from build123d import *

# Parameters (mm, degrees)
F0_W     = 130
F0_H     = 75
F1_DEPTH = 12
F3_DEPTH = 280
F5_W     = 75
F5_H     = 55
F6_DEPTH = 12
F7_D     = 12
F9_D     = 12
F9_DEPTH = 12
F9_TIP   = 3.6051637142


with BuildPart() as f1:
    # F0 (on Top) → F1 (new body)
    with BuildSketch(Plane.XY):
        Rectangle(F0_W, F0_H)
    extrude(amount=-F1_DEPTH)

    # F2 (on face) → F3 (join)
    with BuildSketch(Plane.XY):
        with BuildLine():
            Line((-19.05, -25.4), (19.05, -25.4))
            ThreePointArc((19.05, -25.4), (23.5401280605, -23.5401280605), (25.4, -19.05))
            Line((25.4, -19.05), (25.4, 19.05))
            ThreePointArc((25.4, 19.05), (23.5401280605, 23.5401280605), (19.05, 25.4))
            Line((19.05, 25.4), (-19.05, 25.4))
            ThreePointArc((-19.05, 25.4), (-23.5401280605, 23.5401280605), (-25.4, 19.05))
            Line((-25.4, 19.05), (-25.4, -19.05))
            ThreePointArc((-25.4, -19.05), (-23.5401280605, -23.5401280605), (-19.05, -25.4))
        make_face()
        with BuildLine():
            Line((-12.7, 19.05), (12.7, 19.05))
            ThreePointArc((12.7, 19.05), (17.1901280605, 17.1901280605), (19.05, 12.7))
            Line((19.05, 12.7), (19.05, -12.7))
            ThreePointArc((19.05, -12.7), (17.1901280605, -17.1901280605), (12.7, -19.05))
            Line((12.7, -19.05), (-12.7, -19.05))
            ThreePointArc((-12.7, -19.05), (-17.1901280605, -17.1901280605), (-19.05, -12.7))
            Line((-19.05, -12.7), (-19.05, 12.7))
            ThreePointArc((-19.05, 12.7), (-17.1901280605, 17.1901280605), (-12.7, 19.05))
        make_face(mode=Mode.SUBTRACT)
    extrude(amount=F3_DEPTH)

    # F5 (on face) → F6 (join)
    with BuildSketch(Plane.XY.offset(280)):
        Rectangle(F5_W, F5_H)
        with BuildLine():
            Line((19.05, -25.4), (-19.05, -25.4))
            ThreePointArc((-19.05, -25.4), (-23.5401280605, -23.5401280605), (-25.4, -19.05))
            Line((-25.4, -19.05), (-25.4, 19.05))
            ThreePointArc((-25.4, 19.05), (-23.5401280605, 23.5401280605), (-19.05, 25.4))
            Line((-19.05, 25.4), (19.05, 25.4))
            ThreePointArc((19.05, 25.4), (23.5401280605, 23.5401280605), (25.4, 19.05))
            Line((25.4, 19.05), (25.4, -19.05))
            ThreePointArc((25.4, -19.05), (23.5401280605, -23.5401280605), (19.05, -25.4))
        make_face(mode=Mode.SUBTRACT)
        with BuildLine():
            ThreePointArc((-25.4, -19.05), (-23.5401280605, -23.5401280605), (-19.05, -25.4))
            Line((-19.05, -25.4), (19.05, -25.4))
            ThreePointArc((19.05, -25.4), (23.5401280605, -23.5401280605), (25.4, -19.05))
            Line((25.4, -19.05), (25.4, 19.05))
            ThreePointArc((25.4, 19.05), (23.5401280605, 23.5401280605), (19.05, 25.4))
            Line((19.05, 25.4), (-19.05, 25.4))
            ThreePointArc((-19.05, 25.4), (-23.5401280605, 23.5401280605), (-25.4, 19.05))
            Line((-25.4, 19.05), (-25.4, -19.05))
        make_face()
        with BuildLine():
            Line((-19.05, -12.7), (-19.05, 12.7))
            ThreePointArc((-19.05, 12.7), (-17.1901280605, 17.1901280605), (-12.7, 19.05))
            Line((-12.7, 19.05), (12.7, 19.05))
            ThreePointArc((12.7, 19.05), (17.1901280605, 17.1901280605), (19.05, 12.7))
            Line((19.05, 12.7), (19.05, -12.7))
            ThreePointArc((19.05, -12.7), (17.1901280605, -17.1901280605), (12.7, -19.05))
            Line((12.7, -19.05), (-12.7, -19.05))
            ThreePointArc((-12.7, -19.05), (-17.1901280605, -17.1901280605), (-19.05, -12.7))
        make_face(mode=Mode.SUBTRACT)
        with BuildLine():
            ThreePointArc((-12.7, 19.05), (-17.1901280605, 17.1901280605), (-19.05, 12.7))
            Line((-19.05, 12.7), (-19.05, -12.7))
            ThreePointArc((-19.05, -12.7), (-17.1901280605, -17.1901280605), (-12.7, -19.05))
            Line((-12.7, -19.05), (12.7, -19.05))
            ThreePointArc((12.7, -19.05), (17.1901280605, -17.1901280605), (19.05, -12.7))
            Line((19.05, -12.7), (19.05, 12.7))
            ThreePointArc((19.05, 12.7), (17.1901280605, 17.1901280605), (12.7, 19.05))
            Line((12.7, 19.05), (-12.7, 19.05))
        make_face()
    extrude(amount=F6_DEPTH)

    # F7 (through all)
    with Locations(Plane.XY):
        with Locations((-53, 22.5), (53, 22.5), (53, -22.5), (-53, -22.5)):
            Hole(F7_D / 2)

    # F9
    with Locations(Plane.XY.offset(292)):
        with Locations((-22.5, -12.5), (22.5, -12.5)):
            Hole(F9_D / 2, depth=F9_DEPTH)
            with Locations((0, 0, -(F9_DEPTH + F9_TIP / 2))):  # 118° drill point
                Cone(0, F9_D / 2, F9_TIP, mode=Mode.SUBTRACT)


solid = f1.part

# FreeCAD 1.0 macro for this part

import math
import FreeCAD as App
import Part
import Sketcher

V = App.Vector
Q = App.Units.Quantity

doc = App.newDocument("Part")
body = doc.addObject("PartDesign::Body", "Body")

sketch1 = body.newObject("Sketcher::SketchObject", "Sketch")
sketch1.AttachmentSupport = (doc.getObject("XY_Plane"), [""])
sketch1.MapMode = "FlatFace"
sketch1.addGeometry(Part.LineSegment(V(-65, 38, 0), V(-65, -38, 0)), False)
sketch1.addGeometry(Part.LineSegment(V(-65, -38, 0), V(65, -38, 0)), False)
sketch1.addGeometry(Part.LineSegment(V(65, -38, 0), V(65, 38, 0)), False)
sketch1.addGeometry(Part.LineSegment(V(65, 38, 0), V(-65, 38, 0)), False)
sketch1.addConstraint(Sketcher.Constraint("Coincident", 0, 2, 1, 1))
sketch1.addConstraint(Sketcher.Constraint("Coincident", 1, 2, 2, 1))
sketch1.addConstraint(Sketcher.Constraint("Coincident", 2, 2, 3, 1))
sketch1.addConstraint(Sketcher.Constraint("Coincident", 3, 2, 0, 1))
sketch1.addConstraint(Sketcher.Constraint("Vertical", 0))
sketch1.addConstraint(Sketcher.Constraint("Horizontal", 1))
sketch1.addConstraint(Sketcher.Constraint("Vertical", 2))
sketch1.addConstraint(Sketcher.Constraint("Horizontal", 3))
sketch1.addConstraint(Sketcher.Constraint("Symmetric", 0, 2, 2, 2, -1, 1))
sketch1.addConstraint(Sketcher.Constraint("DistanceX", 1, 1, 1, 2, Q("130 mm")))
sketch1.addConstraint(Sketcher.Constraint("DistanceY", 0, 2, 0, 1, Q("75 mm")))
pad1 = body.newObject("PartDesign::Pad", "Pad")
pad1.Profile = sketch1
pad1.Length = 12
pad1.Reversed = True

sketch2 = body.newObject("Sketcher::SketchObject", "Sketch001")
sketch2.AttachmentSupport = (doc.getObject("XY_Plane"), [""])
sketch2.MapMode = "FlatFace"
sketch2.addGeometry(Part.LineSegment(V(-19, -25, 0), V(19, -25, 0)), False)
sketch2.addGeometry(Part.ArcOfCircle(Part.Circle(V(19, -19, 0), V(0, 0, 1), 6), math.radians(-90), math.radians(0)), False)
sketch2.addGeometry(Part.LineSegment(V(25, -19, 0), V(25, 19, 0)), False)
sketch2.addGeometry(Part.ArcOfCircle(Part.Circle(V(19, 19, 0), V(0, 0, 1), 6), math.radians(0), math.radians(90)), False)
sketch2.addGeometry(Part.LineSegment(V(19, 25, 0), V(-19, 25, 0)), False)
sketch2.addGeometry(Part.ArcOfCircle(Part.Circle(V(-19, 19, 0), V(0, 0, 1), 6), math.radians(90), math.radians(180)), False)
sketch2.addGeometry(Part.LineSegment(V(-25, 19, 0), V(-25, -19, 0)), False)
sketch2.addGeometry(Part.ArcOfCircle(Part.Circle(V(-19, -19, 0), V(0, 0, 1), 6), math.radians(180), math.radians(270)), False)
sketch2.addGeometry(Part.ArcOfCircle(Part.Circle(V(-13, 13, 0), V(0, 0, 1), 6), math.radians(90), math.radians(180)), False)
sketch2.addGeometry(Part.LineSegment(V(-13, 19, 0), V(13, 19, 0)), False)
sketch2.addGeometry(Part.ArcOfCircle(Part.Circle(V(13, 13, 0), V(0, 0, 1), 6), math.radians(0), math.radians(90)), False)
sketch2.addGeometry(Part.LineSegment(V(19, 13, 0), V(19, -13, 0)), False)
sketch2.addGeometry(Part.ArcOfCircle(Part.Circle(V(13, -13, 0), V(0, 0, 1), 6), math.radians(-90), math.radians(0)), False)
sketch2.addGeometry(Part.LineSegment(V(13, -19, 0), V(-13, -19, 0)), False)
sketch2.addGeometry(Part.ArcOfCircle(Part.Circle(V(-13, -13, 0), V(0, 0, 1), 6), math.radians(180), math.radians(270)), False)
sketch2.addGeometry(Part.LineSegment(V(-19, -13, 0), V(-19, 13, 0)), False)
sketch2.addConstraint(Sketcher.Constraint("Tangent", 0, 2, 1, 1))
sketch2.addConstraint(Sketcher.Constraint("Tangent", 1, 2, 2, 1))
sketch2.addConstraint(Sketcher.Constraint("Tangent", 2, 2, 3, 1))
sketch2.addConstraint(Sketcher.Constraint("Tangent", 3, 2, 4, 1))
sketch2.addConstraint(Sketcher.Constraint("Tangent", 4, 2, 5, 1))
sketch2.addConstraint(Sketcher.Constraint("Tangent", 5, 2, 6, 1))
sketch2.addConstraint(Sketcher.Constraint("Tangent", 6, 2, 7, 1))
sketch2.addConstraint(Sketcher.Constraint("Tangent", 7, 2, 0, 1))
sketch2.addConstraint(Sketcher.Constraint("Tangent", 8, 1, 9, 1))
sketch2.addConstraint(Sketcher.Constraint("Tangent", 9, 2, 10, 2))
sketch2.addConstraint(Sketcher.Constraint("Tangent", 10, 1, 11, 1))
sketch2.addConstraint(Sketcher.Constraint("Tangent", 11, 2, 12, 2))
sketch2.addConstraint(Sketcher.Constraint("Tangent", 12, 1, 13, 1))
sketch2.addConstraint(Sketcher.Constraint("Tangent", 13, 2, 14, 2))
sketch2.addConstraint(Sketcher.Constraint("Tangent", 14, 1, 15, 1))
sketch2.addConstraint(Sketcher.Constraint("Tangent", 15, 2, 8, 2))
sketch2.addConstraint(Sketcher.Constraint("Horizontal", 0))
sketch2.addConstraint(Sketcher.Constraint("Vertical", 2))
sketch2.addConstraint(Sketcher.Constraint("Horizontal", 4))
sketch2.addConstraint(Sketcher.Constraint("Vertical", 6))
sketch2.addConstraint(Sketcher.Constraint("Horizontal", 9))
sketch2.addConstraint(Sketcher.Constraint("Vertical", 11))
sketch2.addConstraint(Sketcher.Constraint("Horizontal", 13))
sketch2.addConstraint(Sketcher.Constraint("Vertical", 15))
sketch2.addConstraint(Sketcher.Constraint("Equal", 1, 3))
sketch2.addConstraint(Sketcher.Constraint("Equal", 3, 5))
sketch2.addConstraint(Sketcher.Constraint("Equal", 5, 7))
sketch2.addConstraint(Sketcher.Constraint("Equal", 7, 8))
sketch2.addConstraint(Sketcher.Constraint("Equal", 8, 10))
sketch2.addConstraint(Sketcher.Constraint("Equal", 10, 12))
sketch2.addConstraint(Sketcher.Constraint("Equal", 12, 14))
sketch2.addConstraint(Sketcher.Constraint("Symmetric", 1, 3, 5, 3, -1, 1))
sketch2.addConstraint(Sketcher.Constraint("Symmetric", 8, 3, 12, 3, -1, 1))
sketch2.addConstraint(Sketcher.Constraint("Horizontal", 5, 2, 8, 1))
sketch2.addConstraint(Sketcher.Constraint("Vertical", 3, 2, 10, 1))
sketch2.addConstraint(Sketcher.Constraint("Equal", 4, 2))
sketch2.addConstraint(Sketcher.Constraint("Radius", 1, Q("6.35 mm")))
sketch2.addConstraint(Sketcher.Constraint("DistanceX", 0, 1, 0, 2, Q("38.1 mm")))
pad2 = body.newObject("PartDesign::Pad", "Pad001")
pad2.Profile = sketch2
pad2.Length = 280

sketch3 = body.newObject("Sketcher::SketchObject", "Sketch002")
sketch3.AttachmentSupport = (doc.getObject("XY_Plane"), [""])
sketch3.MapMode = "FlatFace"
sketch3.AttachmentOffset = App.Placement(V(0, 0, 280), App.Rotation())
sketch3.addGeometry(Part.LineSegment(V(-38, 28, 0), V(-38, -28, 0)), False)
sketch3.addGeometry(Part.LineSegment(V(-38, -28, 0), V(38, -28, 0)), False)
sketch3.addGeometry(Part.LineSegment(V(38, -28, 0), V(38, 28, 0)), False)
sketch3.addGeometry(Part.LineSegment(V(38, 28, 0), V(-38, 28, 0)), False)
sketch3.addConstraint(Sketcher.Constraint("Coincident", 0, 2, 1, 1))
sketch3.addConstraint(Sketcher.Constraint("Coincident", 1, 2, 2, 1))
sketch3.addConstraint(Sketcher.Constraint("Coincident", 2, 2, 3, 1))
sketch3.addConstraint(Sketcher.Constraint("Coincident", 3, 2, 0, 1))
sketch3.addConstraint(Sketcher.Constraint("Vertical", 0))
sketch3.addConstraint(Sketcher.Constraint("Horizontal", 1))
sketch3.addConstraint(Sketcher.Constraint("Vertical", 2))
sketch3.addConstraint(Sketcher.Constraint("Horizontal", 3))
sketch3.addConstraint(Sketcher.Constraint("Symmetric", 0, 2, 2, 2, -1, 1))
sketch3.addConstraint(Sketcher.Constraint("DistanceX", 1, 1, 1, 2, Q("75 mm")))
sketch3.addConstraint(Sketcher.Constraint("DistanceY", 0, 2, 0, 1, Q("55 mm")))
pad3 = body.newObject("PartDesign::Pad", "Pad002")
pad3.Profile = sketch3
pad3.Length = 12

sketch4 = body.newObject("Sketcher::SketchObject", "Sketch003")
sketch4.AttachmentSupport = (doc.getObject("XY_Plane"), [""])
sketch4.MapMode = "FlatFace"
sketch4.addGeometry(Part.Circle(V(-53, 22, 0), V(0, 0, 1), 6), False)
sketch4.addGeometry(Part.Circle(V(53, 22, 0), V(0, 0, 1), 6), False)
sketch4.addGeometry(Part.Circle(V(53, -22, 0), V(0, 0, 1), 6), False)
sketch4.addGeometry(Part.Circle(V(-53, -22, 0), V(0, 0, 1), 6), False)
sketch4.addConstraint(Sketcher.Constraint("Equal", 0, 1))
sketch4.addConstraint(Sketcher.Constraint("Equal", 1, 2))
sketch4.addConstraint(Sketcher.Constraint("Equal", 2, 3))
sketch4.addConstraint(Sketcher.Constraint("Symmetric", 0, 3, 2, 3, -1, 1))
sketch4.addConstraint(Sketcher.Constraint("Symmetric", 1, 3, 3, 3, -1, 1))
sketch4.addConstraint(Sketcher.Constraint("Symmetric", 0, 3, 1, 3, -2))
sketch4.addConstraint(Sketcher.Constraint("Diameter", 0, Q("12 mm")))
sketch4.addConstraint(Sketcher.Constraint("DistanceX", 0, 3, -1, 1, Q("53 mm")))
sketch4.addConstraint(Sketcher.Constraint("DistanceY", 2, 3, 1, 3, Q("45 mm")))
doc.recompute()
hole = body.newObject("PartDesign::Hole", "Hole")
hole.Profile = sketch4
hole.ThreadType = "None"
hole.Diameter = 12
hole.DepthType = "ThroughAll"

sketch5 = body.newObject("Sketcher::SketchObject", "Sketch004")
sketch5.AttachmentSupport = (doc.getObject("XY_Plane"), [""])
sketch5.MapMode = "FlatFace"
sketch5.AttachmentOffset = App.Placement(V(0, 0, 292), App.Rotation())
sketch5.addGeometry(Part.Circle(V(-22, -12, 0), V(0, 0, 1), 6), False)
sketch5.addGeometry(Part.Circle(V(22, -12, 0), V(0, 0, 1), 6), False)
sketch5.addConstraint(Sketcher.Constraint("Equal", 0, 1))
sketch5.addConstraint(Sketcher.Constraint("Symmetric", 0, 3, 1, 3, -2))
sketch5.addConstraint(Sketcher.Constraint("Diameter", 0, Q("12 mm")))
sketch5.addConstraint(Sketcher.Constraint("DistanceX", 0, 3, 1, 3, Q("45 mm")))
sketch5.addConstraint(Sketcher.Constraint("DistanceY", 0, 3, -1, 1, Q("12.5 mm")))
doc.recompute()
hole2 = body.newObject("PartDesign::Hole", "Hole001")
hole2.Profile = sketch5
hole2.ThreadType = "None"
hole2.Diameter = 12
hole2.DepthType = "Dimension"
hole2.Depth = 12
hole2.DrillPoint = "Angled"
hole2.DrillPointAngle = 118

doc.recompute()
